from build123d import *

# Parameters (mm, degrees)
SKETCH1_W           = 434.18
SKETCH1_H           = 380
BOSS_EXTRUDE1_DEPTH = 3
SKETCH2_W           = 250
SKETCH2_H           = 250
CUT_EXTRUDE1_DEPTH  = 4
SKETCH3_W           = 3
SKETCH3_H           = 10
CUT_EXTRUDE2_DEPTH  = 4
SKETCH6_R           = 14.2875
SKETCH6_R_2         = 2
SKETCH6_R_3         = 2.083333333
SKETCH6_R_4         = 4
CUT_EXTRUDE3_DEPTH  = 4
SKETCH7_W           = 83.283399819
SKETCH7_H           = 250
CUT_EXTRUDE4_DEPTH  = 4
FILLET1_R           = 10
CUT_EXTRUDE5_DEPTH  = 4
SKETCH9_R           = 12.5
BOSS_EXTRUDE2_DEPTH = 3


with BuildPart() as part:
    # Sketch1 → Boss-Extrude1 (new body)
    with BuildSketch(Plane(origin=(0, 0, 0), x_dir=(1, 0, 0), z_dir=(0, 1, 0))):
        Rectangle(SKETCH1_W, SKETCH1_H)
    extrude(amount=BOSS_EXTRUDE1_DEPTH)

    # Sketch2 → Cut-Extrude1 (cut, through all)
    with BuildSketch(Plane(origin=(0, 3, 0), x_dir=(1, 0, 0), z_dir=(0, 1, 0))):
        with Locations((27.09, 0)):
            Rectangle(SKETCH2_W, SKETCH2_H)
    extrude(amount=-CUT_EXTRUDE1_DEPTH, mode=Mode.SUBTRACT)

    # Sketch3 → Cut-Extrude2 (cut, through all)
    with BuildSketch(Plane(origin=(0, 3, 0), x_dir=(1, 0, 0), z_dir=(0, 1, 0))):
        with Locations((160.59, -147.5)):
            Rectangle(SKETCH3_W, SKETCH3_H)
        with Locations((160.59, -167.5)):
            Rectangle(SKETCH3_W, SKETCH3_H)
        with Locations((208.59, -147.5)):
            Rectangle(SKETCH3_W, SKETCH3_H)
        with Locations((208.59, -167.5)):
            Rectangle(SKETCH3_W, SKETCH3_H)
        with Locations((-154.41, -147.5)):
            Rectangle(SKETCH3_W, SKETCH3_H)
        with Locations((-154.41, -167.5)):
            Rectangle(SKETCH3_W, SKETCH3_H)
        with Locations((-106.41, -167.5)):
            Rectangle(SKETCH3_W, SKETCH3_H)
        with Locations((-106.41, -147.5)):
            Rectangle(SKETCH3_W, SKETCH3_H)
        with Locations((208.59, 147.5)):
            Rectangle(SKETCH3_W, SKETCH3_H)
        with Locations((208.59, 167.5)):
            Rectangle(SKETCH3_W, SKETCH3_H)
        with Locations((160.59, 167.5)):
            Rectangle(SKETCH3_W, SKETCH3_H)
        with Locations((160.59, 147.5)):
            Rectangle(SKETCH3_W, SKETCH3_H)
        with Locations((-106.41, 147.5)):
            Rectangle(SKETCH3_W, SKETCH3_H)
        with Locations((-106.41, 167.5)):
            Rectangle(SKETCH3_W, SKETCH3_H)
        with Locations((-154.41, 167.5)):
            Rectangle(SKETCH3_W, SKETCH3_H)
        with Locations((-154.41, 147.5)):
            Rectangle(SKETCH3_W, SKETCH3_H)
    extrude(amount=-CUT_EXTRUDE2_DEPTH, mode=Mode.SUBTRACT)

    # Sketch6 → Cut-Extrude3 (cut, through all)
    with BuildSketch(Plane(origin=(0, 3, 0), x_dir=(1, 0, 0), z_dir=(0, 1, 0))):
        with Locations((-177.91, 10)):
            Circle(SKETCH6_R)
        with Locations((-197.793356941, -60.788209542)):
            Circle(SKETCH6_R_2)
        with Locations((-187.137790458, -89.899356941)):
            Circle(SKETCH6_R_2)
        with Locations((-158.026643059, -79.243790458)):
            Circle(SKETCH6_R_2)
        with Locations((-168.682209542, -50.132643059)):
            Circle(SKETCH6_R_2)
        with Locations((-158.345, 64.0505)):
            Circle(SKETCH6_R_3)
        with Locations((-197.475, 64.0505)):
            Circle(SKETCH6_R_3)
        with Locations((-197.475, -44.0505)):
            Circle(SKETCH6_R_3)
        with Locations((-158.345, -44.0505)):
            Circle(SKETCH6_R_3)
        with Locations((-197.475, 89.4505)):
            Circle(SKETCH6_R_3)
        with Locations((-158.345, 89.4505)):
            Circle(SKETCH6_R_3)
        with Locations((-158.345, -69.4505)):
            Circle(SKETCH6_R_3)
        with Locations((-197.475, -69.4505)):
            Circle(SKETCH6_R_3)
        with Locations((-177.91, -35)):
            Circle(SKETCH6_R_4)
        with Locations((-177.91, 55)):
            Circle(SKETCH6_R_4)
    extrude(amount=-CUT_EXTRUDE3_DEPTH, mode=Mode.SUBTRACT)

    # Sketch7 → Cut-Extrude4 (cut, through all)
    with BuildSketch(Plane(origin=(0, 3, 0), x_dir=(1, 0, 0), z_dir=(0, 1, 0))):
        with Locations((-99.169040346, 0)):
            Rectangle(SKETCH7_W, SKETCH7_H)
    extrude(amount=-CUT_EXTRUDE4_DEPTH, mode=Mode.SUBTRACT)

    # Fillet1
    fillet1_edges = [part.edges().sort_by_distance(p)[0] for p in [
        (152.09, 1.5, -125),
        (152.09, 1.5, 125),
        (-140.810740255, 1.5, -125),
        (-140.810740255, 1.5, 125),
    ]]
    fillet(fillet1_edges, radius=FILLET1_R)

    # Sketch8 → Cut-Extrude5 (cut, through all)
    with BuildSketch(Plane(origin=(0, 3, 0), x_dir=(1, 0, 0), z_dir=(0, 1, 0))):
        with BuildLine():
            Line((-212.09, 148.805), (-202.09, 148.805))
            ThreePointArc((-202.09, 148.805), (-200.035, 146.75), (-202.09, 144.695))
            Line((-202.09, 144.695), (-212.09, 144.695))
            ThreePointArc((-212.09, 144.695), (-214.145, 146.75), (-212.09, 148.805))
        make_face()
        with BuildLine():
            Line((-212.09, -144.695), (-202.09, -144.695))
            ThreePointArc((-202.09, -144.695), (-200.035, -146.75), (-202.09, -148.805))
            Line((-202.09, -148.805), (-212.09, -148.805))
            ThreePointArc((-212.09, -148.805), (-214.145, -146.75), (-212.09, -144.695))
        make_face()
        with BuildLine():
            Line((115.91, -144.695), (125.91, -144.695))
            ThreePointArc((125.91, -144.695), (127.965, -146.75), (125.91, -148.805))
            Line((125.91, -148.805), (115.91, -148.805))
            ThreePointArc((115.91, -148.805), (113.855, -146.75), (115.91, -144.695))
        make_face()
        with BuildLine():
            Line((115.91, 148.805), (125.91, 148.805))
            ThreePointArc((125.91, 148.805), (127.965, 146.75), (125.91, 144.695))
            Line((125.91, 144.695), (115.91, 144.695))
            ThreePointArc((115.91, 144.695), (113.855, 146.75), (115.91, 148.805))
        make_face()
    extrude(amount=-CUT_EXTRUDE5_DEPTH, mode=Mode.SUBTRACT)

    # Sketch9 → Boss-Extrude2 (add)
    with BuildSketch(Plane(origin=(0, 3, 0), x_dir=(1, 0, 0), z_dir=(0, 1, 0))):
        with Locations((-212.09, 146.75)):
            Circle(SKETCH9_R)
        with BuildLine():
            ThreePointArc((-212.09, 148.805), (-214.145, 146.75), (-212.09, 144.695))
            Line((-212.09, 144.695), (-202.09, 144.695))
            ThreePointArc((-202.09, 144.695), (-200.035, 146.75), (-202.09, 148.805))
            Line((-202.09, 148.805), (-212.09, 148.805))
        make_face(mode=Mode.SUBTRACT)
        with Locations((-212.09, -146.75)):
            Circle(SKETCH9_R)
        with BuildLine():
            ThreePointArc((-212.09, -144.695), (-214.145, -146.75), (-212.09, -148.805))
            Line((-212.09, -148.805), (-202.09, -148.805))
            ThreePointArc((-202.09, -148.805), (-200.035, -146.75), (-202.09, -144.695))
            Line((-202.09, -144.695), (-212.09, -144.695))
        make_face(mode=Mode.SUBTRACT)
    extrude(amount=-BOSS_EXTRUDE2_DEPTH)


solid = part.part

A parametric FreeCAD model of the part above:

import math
import FreeCAD as App
import Part
import Sketcher
from FreeCAD import Vector


def edges_at(feature, points):
    """Names of the edges that pass closest to the given points."""
    edges = feature.Shape.Edges
    near = lambda p: min(range(len(edges)), key=lambda i: edges[i].distToShape(Part.Vertex(*p))[0])
    return sorted({f"Edge{near(p) + 1}" for p in points})


def add_polygon(sketch, points):
    """Adds a closed chain of lines whose ends are joined by coincident constraints."""
    first, n = sketch.GeometryCount, len(points)
    for a, b in zip(points, points[1:] + points[:1]):
        sketch.addGeometry(Part.LineSegment(App.Vector(*a, 0), App.Vector(*b, 0)), False)
    for i in range(n):
        sketch.addConstraint(Sketcher.Constraint("Coincident", first + i, 2, first + (i + 1) % n, 1))

doc = App.newDocument("Part")
body = doc.addObject("PartDesign::Body", "Body")

# Sketch on XZ plane
sketch1 = doc.addObject("Sketcher::SketchObject", "Sketch")
body.addObject(sketch1)
sketch1.AttachmentSupport = (doc.XZ_Plane, [""])
sketch1.MapMode = "FlatFace"
add_polygon(sketch1, [(-217, -190), (-217, 190), (217, 190), (217, -190)])  # lines 0-3
sketch1.addConstraint([
    Sketcher.Constraint("Vertical", 0),
    Sketcher.Constraint("Horizontal", 1),
    Sketcher.Constraint("Vertical", 2),
    Sketcher.Constraint("Horizontal", 3),
    Sketcher.Constraint("Symmetric", 0, 2, 2, 2, -1, 1),
    Sketcher.Constraint("DistanceY", 0, 1, 0, 2, 380.0),
    Sketcher.Constraint("DistanceX", 1, 1, 1, 2, 434.18),
])
pad1 = doc.addObject("PartDesign::Pad", "Pad")
body.addObject(pad1)
pad1.Profile = sketch1
pad1.Length = 3
pad1.Reversed = True

# Sketch on XZ plane
sketch2 = doc.addObject("Sketcher::SketchObject", "Sketch001")
body.addObject(sketch2)
sketch2.AttachmentSupport = (doc.XZ_Plane, [""])
sketch2.MapMode = "FlatFace"
sketch2.AttachmentOffset = App.Placement(Vector(0, 0, -3), App.Rotation())
add_polygon(sketch2, [(-98, -125), (-98, 125), (152, 125), (152, -125)])  # lines 0-3
sketch2.addConstraint([
    Sketcher.Constraint("Vertical", 0),
    Sketcher.Constraint("Horizontal", 1),
    Sketcher.Constraint("Vertical", 2),
    Sketcher.Constraint("Horizontal", 3),
    Sketcher.Constraint("Equal", 3, 0),
    Sketcher.Constraint("DistanceX", 1, 1, 1, 2, 250.0),
    Sketcher.Constraint("DistanceY", -1, 1, 0, 2, 125.0),
    Sketcher.Constraint("DistanceX", 0, 2, -1, 1, 97.91),
])
pocket1 = doc.addObject("PartDesign::Pocket", "Pocket")
body.addObject(pocket1)
pocket1.Profile = sketch2
pocket1.Type = "ThroughAll"
pocket1.Reversed = True

# Sketch on XZ plane
sketch3 = doc.addObject("Sketcher::SketchObject", "Sketch002")
body.addObject(sketch3)
sketch3.AttachmentSupport = (doc.XZ_Plane, [""])
sketch3.MapMode = "FlatFace"
sketch3.AttachmentOffset = App.Placement(Vector(0, 0, -3), App.Rotation())
add_polygon(sketch3, [(159.1, 142.5), (159.1, 152.5), (162.1, 152.5), (162.1, 142.5)])  # lines 0-3
add_polygon(sketch3, [(159.1, 162.5), (159.1, 172.5), (162.1, 172.5), (162.1, 162.5)])  # lines 4-7
add_polygon(sketch3, [(207.1, 142.5), (207.1, 152.5), (210.1, 152.5), (210.1, 142.5)])  # lines 8-11
add_polygon(sketch3, [(207.1, 162.5), (207.1, 172.5), (210.1, 172.5), (210.1, 162.5)])  # lines 12-15
add_polygon(sketch3, [(-155.9, 142.5), (-155.9, 152.5), (-152.9, 152.5), (-152.9, 142.5)])  # lines 16-19
add_polygon(sketch3, [(-155.9, 162.5), (-155.9, 172.5), (-152.9, 172.5), (-152.9, 162.5)])  # lines 20-23
add_polygon(sketch3, [(-107.9, 162.5), (-107.9, 172.5), (-104.9, 172.5), (-104.9, 162.5)])  # lines 24-27
add_polygon(sketch3, [(-107.9, 142.5), (-107.9, 152.5), (-104.9, 152.5), (-104.9, 142.5)])  # lines 28-31
add_polygon(sketch3, [(207.1, -152.5), (207.1, -142.5), (210.1, -142.5), (210.1, -152.5)])  # lines 32-35
add_polygon(sketch3, [(207.1, -172.5), (207.1, -162.5), (210.1, -162.5), (210.1, -172.5)])  # lines 36-39
add_polygon(sketch3, [(159.1, -172.5), (159.1, -162.5), (162.1, -162.5), (162.1, -172.5)])  # lines 40-43
add_polygon(sketch3, [(159.1, -152.5), (159.1, -142.5), (162.1, -142.5), (162.1, -152.5)])  # lines 44-47
add_polygon(sketch3, [(-107.9, -152.5), (-107.9, -142.5), (-104.9, -142.5), (-104.9, -152.5)])  # lines 48-51
add_polygon(sketch3, [(-107.9, -172.5), (-107.9, -162.5), (-104.9, -162.5), (-104.9, -172.5)])  # lines 52-55
add_polygon(sketch3, [(-155.9, -172.5), (-155.9, -162.5), (-152.9, -162.5), (-152.9, -172.5)])  # lines 56-59
add_polygon(sketch3, [(-155.9, -152.5), (-155.9, -142.5), (-152.9, -142.5), (-152.9, -152.5)])  # lines 60-63
sketch3.addConstraint([
    Sketcher.Constraint("Vertical", 0),
    Sketcher.Constraint("Horizontal", 1),
    Sketcher.Constraint("Vertical", 2),
    Sketcher.Constraint("Horizontal", 3),
    Sketcher.Constraint("Vertical", 4),
    Sketcher.Constraint("Horizontal", 5),
    Sketcher.Constraint("Vertical", 6),
    Sketcher.Constraint("Horizontal", 7),
    Sketcher.Constraint("Vertical", 8),
    Sketcher.Constraint("Horizontal", 9),
    Sketcher.Constraint("Vertical", 10),
    Sketcher.Constraint("Horizontal", 11),
    Sketcher.Constraint("Vertical", 12),
    Sketcher.Constraint("Horizontal", 13),
    Sketcher.Constraint("Vertical", 14),
    Sketcher.Constraint("Horizontal", 15),
    Sketcher.Constraint("Vertical", 16),
    Sketcher.Constraint("Horizontal", 17),
    Sketcher.Constraint("Vertical", 18),
    Sketcher.Constraint("Horizontal", 19),
    Sketcher.Constraint("Vertical", 20),
    Sketcher.Constraint("Horizontal", 21),
    Sketcher.Constraint("Vertical", 22),
    Sketcher.Constraint("Horizontal", 23),
    Sketcher.Constraint("Vertical", 24),
    Sketcher.Constraint("Horizontal", 25),
    Sketcher.Constraint("Vertical", 26),
    Sketcher.Constraint("Horizontal", 27),
    Sketcher.Constraint("Vertical", 28),
    Sketcher.Constraint("Horizontal", 29),
    Sketcher.Constraint("Vertical", 30),
    Sketcher.Constraint("Horizontal", 31),
    Sketcher.Constraint("Vertical", 32),
    Sketcher.Constraint("Horizontal", 33),
    Sketcher.Constraint("Vertical", 34),
    Sketcher.Constraint("Horizontal", 35),
    Sketcher.Constraint("Vertical", 36),
    Sketcher.Constraint("Horizontal", 37),
    Sketcher.Constraint("Vertical", 38),
    Sketcher.Constraint("Horizontal", 39),
    Sketcher.Constraint("Vertical", 40),
    Sketcher.Constraint("Horizontal", 41),
    Sketcher.Constraint("Vertical", 42),
    Sketcher.Constraint("Horizontal", 43),
    Sketcher.Constraint("Vertical", 44),
    Sketcher.Constraint("Horizontal", 45),
    Sketcher.Constraint("Vertical", 46),
    Sketcher.Constraint("Horizontal", 47),
    Sketcher.Constraint("Vertical", 48),
    Sketcher.Constraint("Horizontal", 49),
    Sketcher.Constraint("Vertical", 50),
    Sketcher.Constraint("Horizontal", 51),
    Sketcher.Constraint("Vertical", 52),
    Sketcher.Constraint("Horizontal", 53),
    Sketcher.Constraint("Vertical", 54),
    Sketcher.Constraint("Horizontal", 55),
    Sketcher.Constraint("Vertical", 56),
    Sketcher.Constraint("Horizontal", 57),
    Sketcher.Constraint("Vertical", 58),
    Sketcher.Constraint("Horizontal", 59),
    Sketcher.Constraint("Vertical", 60),
    Sketcher.Constraint("Horizontal", 61),
    Sketcher.Constraint("Vertical", 62),
    Sketcher.Constraint("Horizontal", 63),
    Sketcher.Constraint("Symmetric", 11, 2, 32, 2, -1),
    Sketcher.Constraint("Symmetric", 9, 2, 34, 2, -1),
    Sketcher.Constraint("Symmetric", 15, 2, 36, 2, -1),
    Sketcher.Constraint("Symmetric", 13, 2, 38, 2, -1),
    Sketcher.Constraint("Symmetric", 7, 2, 40, 2, -1),
    Sketcher.Constraint("Symmetric", 5, 2, 42, 2, -1),
    Sketcher.Constraint("Symmetric", 3, 2, 44, 2, -1),
    Sketcher.Constraint("Symmetric", 1, 2, 46, 2, -1),
    Sketcher.Constraint("Symmetric", 31, 2, 48, 2, -1),
    Sketcher.Constraint("Symmetric", 29, 2, 50, 2, -1),
    Sketcher.Constraint("Symmetric", 27, 2, 52, 2, -1),
    Sketcher.Constraint("Symmetric", 25, 2, 54, 2, -1),
    Sketcher.Constraint("Symmetric", 23, 2, 56, 2, -1),
    Sketcher.Constraint("Symmetric", 21, 2, 58, 2, -1),
    Sketcher.Constraint("Symmetric", 19, 2, 60, 2, -1),
    Sketcher.Constraint("Symmetric", 17, 2, 62, 2, -1),
    Sketcher.Constraint("Horizontal", 1, 2, 8, 2),
    Sketcher.Constraint("Horizontal", 3, 2, 10, 2),
    Sketcher.Constraint("Horizontal", 5, 2, 12, 2),
    Sketcher.Constraint("Horizontal", 7, 2, 14, 2),
    Sketcher.Constraint("Horizontal", 9, 2, 16, 2),
    Sketcher.Constraint("Horizontal", 11, 2, 18, 2),
    Sketcher.Constraint("Horizontal", 13, 2, 20, 2),
    Sketcher.Constraint("Horizontal", 15, 2, 22, 2),
    Sketcher.Constraint("Horizontal", 21, 2, 24, 2),
    Sketcher.Constraint("Horizontal", 23, 2, 26, 2),
    Sketcher.Constraint("Horizontal", 17, 2, 28, 2),
    Sketcher.Constraint("Horizontal", 19, 2, 30, 2),
    Sketcher.Constraint("Vertical", 3, 2, 4, 2),
    Sketcher.Constraint("Vertical", 2, 2, 5, 2),
    Sketcher.Constraint("Vertical", 11, 2, 12, 2),
    Sketcher.Constraint("Vertical", 10, 2, 13, 2),
    Sketcher.Constraint("Vertical", 19, 2, 20, 2),
    Sketcher.Constraint("Vertical", 18, 2, 21, 2),
    Sketcher.Constraint("Vertical", 27, 2, 28, 2),
    Sketcher.Constraint("Vertical", 26, 2, 29, 2),
    Sketcher.Constraint("Equal", 7, 9),
    Sketcher.Constraint("Equal", 15, 17),
    Sketcher.Constraint("Equal", 23, 25),
    Sketcher.Constraint("Equal", 2, 4),
    Sketcher.Constraint("DistanceX", 1, 1, 1, 2, 3.0),
    Sketcher.Constraint("DistanceY", 0, 1, 0, 2, 10.0),
    Sketcher.Constraint("DistanceY", -1, 1, 0, 2, 152.5),
    Sketcher.Constraint("DistanceY", -1, 1, 4, 2, 172.5),
    Sketcher.Constraint("DistanceX", -1, 1, 0, 2, 159.09),
    Sketcher.Constraint("DistanceX", -1, 1, 8, 2, 207.09),
    Sketcher.Constraint("DistanceX", 16, 2, -1, 1, 155.91),
    Sketcher.Constraint("DistanceX", 24, 2, -1, 1, 107.91),
])
pocket2 = doc.addObject("PartDesign::Pocket", "Pocket001")
body.addObject(pocket2)
pocket2.Profile = sketch3
pocket2.Type = "ThroughAll"
pocket2.Reversed = True

# Sketch on XZ plane
sketch4 = doc.addObject("Sketcher::SketchObject", "Sketch003")
body.addObject(sketch4)
sketch4.AttachmentSupport = (doc.XZ_Plane, [""])
sketch4.MapMode = "FlatFace"
sketch4.AttachmentOffset = App.Placement(Vector(0, 0, -3), App.Rotation())
sketch4.addGeometry([
    Part.Circle(Vector(-177.9, -10, 0), Vector(0, 0, 1), 14.3),  # 0
    Part.Circle(Vector(-197.8, 60.8, 0), Vector(0, 0, 1), 2),  # 1
    Part.Circle(Vector(-187.1, 89.9, 0), Vector(0, 0, 1), 2),  # 2
    Part.Circle(Vector(-158, 79.2, 0), Vector(0, 0, 1), 2),  # 3
    Part.Circle(Vector(-168.7, 50.1, 0), Vector(0, 0, 1), 2),  # 4
    Part.Circle(Vector(-158.3, -64.1, 0), Vector(0, 0, 1), 2.1),  # 5
    Part.Circle(Vector(-197.5, -64.1, 0), Vector(0, 0, 1), 2.1),  # 6
    Part.Circle(Vector(-197.5, 44.1, 0), Vector(0, 0, 1), 2.1),  # 7
    Part.Circle(Vector(-158.3, 44.1, 0), Vector(0, 0, 1), 2.1),  # 8
    Part.Circle(Vector(-197.5, -89.5, 0), Vector(0, 0, 1), 2.1),  # 9
    Part.Circle(Vector(-158.3, -89.5, 0), Vector(0, 0, 1), 2.1),  # 10
    Part.Circle(Vector(-158.3, 69.5, 0), Vector(0, 0, 1), 2.1),  # 11
    Part.Circle(Vector(-197.5, 69.5, 0), Vector(0, 0, 1), 2.1),  # 12
    Part.Circle(Vector(-177.9, 35, 0), Vector(0, 0, 1), 4),  # 13
    Part.Circle(Vector(-177.9, -55, 0), Vector(0, 0, 1), 4),  # 14
], False)
sketch4.addConstraint([
    Sketcher.Constraint("Equal", 1, 2),
    Sketcher.Constraint("Equal", 2, 3),
    Sketcher.Constraint("Equal", 3, 4),
    Sketcher.Constraint("Equal", 5, 6),
    Sketcher.Constraint("Equal", 6, 7),
    Sketcher.Constraint("Equal", 7, 8),
    Sketcher.Constraint("Equal", 8, 9),
    Sketcher.Constraint("Equal", 9, 10),
    Sketcher.Constraint("Equal", 10, 11),
    Sketcher.Constraint("Equal", 11, 12),
    Sketcher.Constraint("Equal", 13, 14),
    Sketcher.Constraint("Horizontal", 5, 3, 6, 3),
    Sketcher.Constraint("Horizontal", 7, 3, 8, 3),
    Sketcher.Constraint("Horizontal", 9, 3, 10, 3),
    Sketcher.Constraint("Horizontal", 11, 3, 12, 3),
    Sketcher.Constraint("Vertical", 6, 3, 7, 3),
    Sketcher.Constraint("Vertical", 5, 3, 8, 3),
    Sketcher.Constraint("Vertical", 7, 3, 9, 3),
    Sketcher.Constraint("Vertical", 8, 3, 10, 3),
    Sketcher.Constraint("Vertical", 10, 3, 11, 3),
    Sketcher.Constraint("Vertical", 9, 3, 12, 3),
    Sketcher.Constraint("Vertical", 0, 3, 13, 3),
    Sketcher.Constraint("Vertical", 13, 3, 14, 3),
    Sketcher.Constraint("Diameter", 1, 4.0),
    Sketcher.Constraint("Diameter", 13, 8.0),
    Sketcher.Constraint("Diameter", 0, 28.575),
    Sketcher.Constraint("DistanceY", 0, 3, -1, 1, 10.0),
    Sketcher.Constraint("DistanceY", -1, 1, 13, 3, 35.0),
    Sketcher.Constraint("DistanceY", 14, 3, -1, 1, 55.0),
    Sketcher.Constraint("DistanceY", 9, 3, 6, 3, 25.4),
    Sketcher.Constraint("DistanceY", 8, 3, 11, 3, 25.4),
    Sketcher.Constraint("DistanceX", 0, 3, -1, 1, 177.91),
    Sketcher.Constraint("DistanceX", 6, 3, 5, 3, 39.13),
    Sketcher.Constraint("Diameter", 5, 4.166667),
    Sketcher.Constraint("DistanceX", 5, 3, -1, 1, 158.345),
    Sketcher.Constraint("DistanceY", 9, 3, 7, 3, 133.501),
    Sketcher.Constraint("DistanceY", 5, 3, -1, 1, 64.0505),
    Sketcher.Constraint("DistanceY", -1, 1, 1, 3, 60.78821),
    Sketcher.Constraint("DistanceX", 2, 3, -1, 1, 187.13779),
    Sketcher.Constraint("DistanceY", -1, 1, 3, 3, 79.24379),
    Sketcher.Constraint("DistanceX", 4, 3, -1, 1, 168.68221),
    Sketcher.Constraint("DistanceX", 1, 3, -1, 1, 197.793357),
    Sketcher.Constraint("DistanceY", -1, 1, 2, 3, 89.899357),
    Sketcher.Constraint("DistanceX", 3, 3, -1, 1, 158.026643),
    Sketcher.Constraint("DistanceY", -1, 1, 4, 3, 50.132643),
])
pocket3 = doc.addObject("PartDesign::Pocket", "Pocket002")
body.addObject(pocket3)
pocket3.Profile = sketch4
pocket3.Type = "ThroughAll"
pocket3.Reversed = True

# Sketch on XZ plane
sketch5 = doc.addObject("Sketcher::SketchObject", "Sketch004")
body.addObject(sketch5)
sketch5.AttachmentSupport = (doc.XZ_Plane, [""])
sketch5.MapMode = "FlatFace"
sketch5.AttachmentOffset = App.Placement(Vector(0, 0, -3), App.Rotation())
add_polygon(sketch5, [(-141, -125), (-141, 125), (-58, 125), (-58, -125)])  # lines 0-3
sketch5.addConstraint([
    Sketcher.Constraint("Vertical", 0),
    Sketcher.Constraint("Horizontal", 1),
    Sketcher.Constraint("Vertical", 2),
    Sketcher.Constraint("Horizontal", 3),
    Sketcher.Constraint("DistanceY", 0, 1, 0, 2, 250.0),
    Sketcher.Constraint("DistanceY", -1, 1, 0, 2, 125.0),
    Sketcher.Constraint("DistanceX", 1, 1, 1, 2, 83.2834),
    Sketcher.Constraint("DistanceX", 0, 2, -1, 1, 140.81074),
])
pocket4 = doc.addObject("PartDesign::Pocket", "Pocket003")
body.addObject(pocket4)
pocket4.Profile = sketch5
pocket4.Type = "ThroughAll"
pocket4.Reversed = True
doc.recompute()

fillet = doc.addObject("PartDesign::Fillet", "Fillet")
body.addObject(fillet)
fillet.Base = (pocket4, edges_at(pocket4, [
    (152.09, 1.5, -125),
    (152.09, 1.5, 125),
    (-140.811, 1.5, -125),
    (-140.811, 1.5, 125),
]))
fillet.Radius = 10

# Sketch on XZ plane
sketch6 = doc.addObject("Sketcher::SketchObject", "Sketch005")
body.addObject(sketch6)
sketch6.AttachmentSupport = (doc.XZ_Plane, [""])
sketch6.MapMode = "FlatFace"
sketch6.AttachmentOffset = App.Placement(Vector(0, 0, -3), App.Rotation())
sketch6.addGeometry([
    Part.LineSegment(Vector(-202.1, -148.8, 0), Vector(-212.1, -148.8, 0)),  # 0
    Part.ArcOfCircle(Part.Circle(Vector(-212.1, -146.8, 0), Vector(0, 0, 1), 2.1), math.radians(90), math.radians(270)),  # 1
    Part.LineSegment(Vector(-212.1, -144.7, 0), Vector(-202.1, -144.7, 0)),  # 2
    Part.ArcOfCircle(Part.Circle(Vector(-202.1, -146.8, 0), Vector(0, 0, 1), 2.1), math.radians(-90), math.radians(90)),  # 3
    Part.LineSegment(Vector(-202.1, 144.7, 0), Vector(-212.1, 144.7, 0)),  # 4
    Part.ArcOfCircle(Part.Circle(Vector(-212.1, 146.8, 0), Vector(0, 0, 1), 2.1), math.radians(90), math.radians(270)),  # 5
    Part.LineSegment(Vector(-212.1, 148.8, 0), Vector(-202.1, 148.8, 0)),  # 6
    Part.ArcOfCircle(Part.Circle(Vector(-202.1, 146.8, 0), Vector(0, 0, 1), 2.1), math.radians(-90), math.radians(90)),  # 7
    Part.LineSegment(Vector(125.9, 144.7, 0), Vector(115.9, 144.7, 0)),  # 8
    Part.ArcOfCircle(Part.Circle(Vector(115.9, 146.8, 0), Vector(0, 0, 1), 2.1), math.radians(90), math.radians(270)),  # 9
    Part.LineSegment(Vector(115.9, 148.8, 0), Vector(125.9, 148.8, 0)),  # 10
    Part.ArcOfCircle(Part.Circle(Vector(125.9, 146.8, 0), Vector(0, 0, 1), 2.1), math.radians(-90), math.radians(90)),  # 11
    Part.LineSegment(Vector(125.9, -148.8, 0), Vector(115.9, -148.8, 0)),  # 12
    Part.ArcOfCircle(Part.Circle(Vector(115.9, -146.8, 0), Vector(0, 0, 1), 2.1), math.radians(90), math.radians(270)),  # 13
    Part.LineSegment(Vector(115.9, -144.7, 0), Vector(125.9, -144.7, 0)),  # 14
    Part.ArcOfCircle(Part.Circle(Vector(125.9, -146.8, 0), Vector(0, 0, 1), 2.1), math.radians(-90), math.radians(90)),  # 15
], False)
sketch6.addConstraint([
    Sketcher.Constraint("Tangent", 0, 2, 1, 2),
    Sketcher.Constraint("Tangent", 1, 1, 2, 1),
    Sketcher.Constraint("Tangent", 2, 2, 3, 2),
    Sketcher.Constraint("Tangent", 3, 1, 0, 1),
    Sketcher.Constraint("Tangent", 4, 2, 5, 2),
    Sketcher.Constraint("Tangent", 5, 1, 6, 1),
    Sketcher.Constraint("Tangent", 6, 2, 7, 2),
    Sketcher.Constraint("Tangent", 7, 1, 4, 1),
    Sketcher.Constraint("Tangent", 8, 2, 9, 2),
    Sketcher.Constraint("Tangent", 9, 1, 10, 1),
    Sketcher.Constraint("Tangent", 10, 2, 11, 2),
    Sketcher.Constraint("Tangent", 11, 1, 8, 1),
    Sketcher.Constraint("Tangent", 12, 2, 13, 2),
    Sketcher.Constraint("Tangent", 13, 1, 14, 1),
    Sketcher.Constraint("Tangent", 14, 2, 15, 2),
    Sketcher.Constraint("Tangent", 15, 1, 12, 1),
    Sketcher.Constraint("Horizontal", 0),
    Sketcher.Constraint("Horizontal", 2),
    Sketcher.Constraint("Horizontal", 4),
    Sketcher.Constraint("Horizontal", 6),
    Sketcher.Constraint("Horizontal", 8),
    Sketcher.Constraint("Horizontal", 10),
    Sketcher.Constraint("Horizontal", 12),
    Sketcher.Constraint("Horizontal", 14),
    Sketcher.Constraint("Equal", 3, 5),
    Sketcher.Constraint("Equal", 7, 9),
    Sketcher.Constraint("Equal", 11, 13),
    Sketcher.Constraint("Symmetric", 1, 3, 5, 3, -1),
    Sketcher.Constraint("Symmetric", 9, 3, 13, 3, -1),
    Sketcher.Constraint("Horizontal", 7, 3, 9, 3),
    Sketcher.Constraint("Vertical", 3, 3, 7, 3),
    Sketcher.Constraint("Vertical", 11, 3, 15, 3),
    Sketcher.Constraint("Equal", 6, 8),
    Sketcher.Constraint("DistanceX", 0, 2, 0, 1, 10.0),
    Sketcher.Constraint("Radius", 1, 2.055),
    Sketcher.Constraint("DistanceX", 7, 3, 9, 3, 318.0),
    Sketcher.Constraint("DistanceY", 1, 3, 5, 3, 293.5),
    Sketcher.Constraint("DistanceX", 1, 3, -1, 1, 212.09),
])
pocket5 = doc.addObject("PartDesign::Pocket", "Pocket004")
body.addObject(pocket5)
pocket5.Profile = sketch6
pocket5.Type = "ThroughAll"
pocket5.Reversed = True

# Sketch on XZ plane
sketch7 = doc.addObject("Sketcher::SketchObject", "Sketch006")
body.addObject(sketch7)
sketch7.AttachmentSupport = (doc.XZ_Plane, [""])
sketch7.MapMode = "FlatFace"
sketch7.AttachmentOffset = App.Placement(Vector(0, 0, -3), App.Rotation())
sketch7.addGeometry([
    Part.Circle(Vector(-212.1, -146.8, 0), Vector(0, 0, 1), 12.5),  # 0
    Part.ArcOfCircle(Part.Circle(Vector(-212.1, -146.8, 0), Vector(0, 0, 1), 2.1), math.radians(90), math.radians(270)),  # 1
    Part.LineSegment(Vector(-212.1, -148.8, 0), Vector(-202.1, -148.8, 0)),  # 2
    Part.ArcOfCircle(Part.Circle(Vector(-202.1, -146.8, 0), Vector(0, 0, 1), 2.1), math.radians(-90), math.radians(90)),  # 3
    Part.LineSegment(Vector(-202.1, -144.7, 0), Vector(-212.1, -144.7, 0)),  # 4
    Part.Circle(Vector(-212.1, 146.8, 0), Vector(0, 0, 1), 12.5),  # 5
    Part.ArcOfCircle(Part.Circle(Vector(-212.1, 146.8, 0), Vector(0, 0, 1), 2.1), math.radians(90), math.radians(270)),  # 6
    Part.LineSegment(Vector(-212.1, 144.7, 0), Vector(-202.1, 144.7, 0)),  # 7
    Part.ArcOfCircle(Part.Circle(Vector(-202.1, 146.8, 0), Vector(0, 0, 1), 2.1), math.radians(-90), math.radians(90)),  # 8
    Part.LineSegment(Vector(-202.1, 148.8, 0), Vector(-212.1, 148.8, 0)),  # 9
], False)
sketch7.addConstraint([
    Sketcher.Constraint("Tangent", 1, 2, 2, 1),
    Sketcher.Constraint("Tangent", 2, 2, 3, 1),
    Sketcher.Constraint("Tangent", 3, 2, 4, 1),
    Sketcher.Constraint("Tangent", 4, 2, 1, 1),
    Sketcher.Constraint("Tangent", 6, 2, 7, 1),
    Sketcher.Constraint("Tangent", 7, 2, 8, 1),
    Sketcher.Constraint("Tangent", 8, 2, 9, 1),
    Sketcher.Constraint("Tangent", 9, 2, 6, 1),
    Sketcher.Constraint("Horizontal", 2),
    Sketcher.Constraint("Horizontal", 4),
    Sketcher.Constraint("Horizontal", 7),
    Sketcher.Constraint("Horizontal", 9),
    Sketcher.Constraint("Coincident", 1, 3, 0, 3),
    Sketcher.Constraint("Coincident", 6, 3, 5, 3),
    Sketcher.Constraint("Equal", 0, 5),
    Sketcher.Constraint("Equal", 3, 6),
    Sketcher.Constraint("Symmetric", 0, 3, 5, 3, -1),
    Sketcher.Constraint("Vertical", 3, 3, 8, 3),
    Sketcher.Constraint("Diameter", 0, 25.0),
    Sketcher.Constraint("DistanceX", 2, 1, 2, 2, 10.0),
    Sketcher.Constraint("Radius", 1, 2.055),
    Sketcher.Constraint("DistanceY", 0, 3, 5, 3, 293.5),
    Sketcher.Constraint("DistanceX", 0, 3, -1, 1, 212.09),
])
pad2 = doc.addObject("PartDesign::Pad", "Pad001")
body.addObject(pad2)
pad2.Profile = sketch7
pad2.Length = 3

doc.recompute()
